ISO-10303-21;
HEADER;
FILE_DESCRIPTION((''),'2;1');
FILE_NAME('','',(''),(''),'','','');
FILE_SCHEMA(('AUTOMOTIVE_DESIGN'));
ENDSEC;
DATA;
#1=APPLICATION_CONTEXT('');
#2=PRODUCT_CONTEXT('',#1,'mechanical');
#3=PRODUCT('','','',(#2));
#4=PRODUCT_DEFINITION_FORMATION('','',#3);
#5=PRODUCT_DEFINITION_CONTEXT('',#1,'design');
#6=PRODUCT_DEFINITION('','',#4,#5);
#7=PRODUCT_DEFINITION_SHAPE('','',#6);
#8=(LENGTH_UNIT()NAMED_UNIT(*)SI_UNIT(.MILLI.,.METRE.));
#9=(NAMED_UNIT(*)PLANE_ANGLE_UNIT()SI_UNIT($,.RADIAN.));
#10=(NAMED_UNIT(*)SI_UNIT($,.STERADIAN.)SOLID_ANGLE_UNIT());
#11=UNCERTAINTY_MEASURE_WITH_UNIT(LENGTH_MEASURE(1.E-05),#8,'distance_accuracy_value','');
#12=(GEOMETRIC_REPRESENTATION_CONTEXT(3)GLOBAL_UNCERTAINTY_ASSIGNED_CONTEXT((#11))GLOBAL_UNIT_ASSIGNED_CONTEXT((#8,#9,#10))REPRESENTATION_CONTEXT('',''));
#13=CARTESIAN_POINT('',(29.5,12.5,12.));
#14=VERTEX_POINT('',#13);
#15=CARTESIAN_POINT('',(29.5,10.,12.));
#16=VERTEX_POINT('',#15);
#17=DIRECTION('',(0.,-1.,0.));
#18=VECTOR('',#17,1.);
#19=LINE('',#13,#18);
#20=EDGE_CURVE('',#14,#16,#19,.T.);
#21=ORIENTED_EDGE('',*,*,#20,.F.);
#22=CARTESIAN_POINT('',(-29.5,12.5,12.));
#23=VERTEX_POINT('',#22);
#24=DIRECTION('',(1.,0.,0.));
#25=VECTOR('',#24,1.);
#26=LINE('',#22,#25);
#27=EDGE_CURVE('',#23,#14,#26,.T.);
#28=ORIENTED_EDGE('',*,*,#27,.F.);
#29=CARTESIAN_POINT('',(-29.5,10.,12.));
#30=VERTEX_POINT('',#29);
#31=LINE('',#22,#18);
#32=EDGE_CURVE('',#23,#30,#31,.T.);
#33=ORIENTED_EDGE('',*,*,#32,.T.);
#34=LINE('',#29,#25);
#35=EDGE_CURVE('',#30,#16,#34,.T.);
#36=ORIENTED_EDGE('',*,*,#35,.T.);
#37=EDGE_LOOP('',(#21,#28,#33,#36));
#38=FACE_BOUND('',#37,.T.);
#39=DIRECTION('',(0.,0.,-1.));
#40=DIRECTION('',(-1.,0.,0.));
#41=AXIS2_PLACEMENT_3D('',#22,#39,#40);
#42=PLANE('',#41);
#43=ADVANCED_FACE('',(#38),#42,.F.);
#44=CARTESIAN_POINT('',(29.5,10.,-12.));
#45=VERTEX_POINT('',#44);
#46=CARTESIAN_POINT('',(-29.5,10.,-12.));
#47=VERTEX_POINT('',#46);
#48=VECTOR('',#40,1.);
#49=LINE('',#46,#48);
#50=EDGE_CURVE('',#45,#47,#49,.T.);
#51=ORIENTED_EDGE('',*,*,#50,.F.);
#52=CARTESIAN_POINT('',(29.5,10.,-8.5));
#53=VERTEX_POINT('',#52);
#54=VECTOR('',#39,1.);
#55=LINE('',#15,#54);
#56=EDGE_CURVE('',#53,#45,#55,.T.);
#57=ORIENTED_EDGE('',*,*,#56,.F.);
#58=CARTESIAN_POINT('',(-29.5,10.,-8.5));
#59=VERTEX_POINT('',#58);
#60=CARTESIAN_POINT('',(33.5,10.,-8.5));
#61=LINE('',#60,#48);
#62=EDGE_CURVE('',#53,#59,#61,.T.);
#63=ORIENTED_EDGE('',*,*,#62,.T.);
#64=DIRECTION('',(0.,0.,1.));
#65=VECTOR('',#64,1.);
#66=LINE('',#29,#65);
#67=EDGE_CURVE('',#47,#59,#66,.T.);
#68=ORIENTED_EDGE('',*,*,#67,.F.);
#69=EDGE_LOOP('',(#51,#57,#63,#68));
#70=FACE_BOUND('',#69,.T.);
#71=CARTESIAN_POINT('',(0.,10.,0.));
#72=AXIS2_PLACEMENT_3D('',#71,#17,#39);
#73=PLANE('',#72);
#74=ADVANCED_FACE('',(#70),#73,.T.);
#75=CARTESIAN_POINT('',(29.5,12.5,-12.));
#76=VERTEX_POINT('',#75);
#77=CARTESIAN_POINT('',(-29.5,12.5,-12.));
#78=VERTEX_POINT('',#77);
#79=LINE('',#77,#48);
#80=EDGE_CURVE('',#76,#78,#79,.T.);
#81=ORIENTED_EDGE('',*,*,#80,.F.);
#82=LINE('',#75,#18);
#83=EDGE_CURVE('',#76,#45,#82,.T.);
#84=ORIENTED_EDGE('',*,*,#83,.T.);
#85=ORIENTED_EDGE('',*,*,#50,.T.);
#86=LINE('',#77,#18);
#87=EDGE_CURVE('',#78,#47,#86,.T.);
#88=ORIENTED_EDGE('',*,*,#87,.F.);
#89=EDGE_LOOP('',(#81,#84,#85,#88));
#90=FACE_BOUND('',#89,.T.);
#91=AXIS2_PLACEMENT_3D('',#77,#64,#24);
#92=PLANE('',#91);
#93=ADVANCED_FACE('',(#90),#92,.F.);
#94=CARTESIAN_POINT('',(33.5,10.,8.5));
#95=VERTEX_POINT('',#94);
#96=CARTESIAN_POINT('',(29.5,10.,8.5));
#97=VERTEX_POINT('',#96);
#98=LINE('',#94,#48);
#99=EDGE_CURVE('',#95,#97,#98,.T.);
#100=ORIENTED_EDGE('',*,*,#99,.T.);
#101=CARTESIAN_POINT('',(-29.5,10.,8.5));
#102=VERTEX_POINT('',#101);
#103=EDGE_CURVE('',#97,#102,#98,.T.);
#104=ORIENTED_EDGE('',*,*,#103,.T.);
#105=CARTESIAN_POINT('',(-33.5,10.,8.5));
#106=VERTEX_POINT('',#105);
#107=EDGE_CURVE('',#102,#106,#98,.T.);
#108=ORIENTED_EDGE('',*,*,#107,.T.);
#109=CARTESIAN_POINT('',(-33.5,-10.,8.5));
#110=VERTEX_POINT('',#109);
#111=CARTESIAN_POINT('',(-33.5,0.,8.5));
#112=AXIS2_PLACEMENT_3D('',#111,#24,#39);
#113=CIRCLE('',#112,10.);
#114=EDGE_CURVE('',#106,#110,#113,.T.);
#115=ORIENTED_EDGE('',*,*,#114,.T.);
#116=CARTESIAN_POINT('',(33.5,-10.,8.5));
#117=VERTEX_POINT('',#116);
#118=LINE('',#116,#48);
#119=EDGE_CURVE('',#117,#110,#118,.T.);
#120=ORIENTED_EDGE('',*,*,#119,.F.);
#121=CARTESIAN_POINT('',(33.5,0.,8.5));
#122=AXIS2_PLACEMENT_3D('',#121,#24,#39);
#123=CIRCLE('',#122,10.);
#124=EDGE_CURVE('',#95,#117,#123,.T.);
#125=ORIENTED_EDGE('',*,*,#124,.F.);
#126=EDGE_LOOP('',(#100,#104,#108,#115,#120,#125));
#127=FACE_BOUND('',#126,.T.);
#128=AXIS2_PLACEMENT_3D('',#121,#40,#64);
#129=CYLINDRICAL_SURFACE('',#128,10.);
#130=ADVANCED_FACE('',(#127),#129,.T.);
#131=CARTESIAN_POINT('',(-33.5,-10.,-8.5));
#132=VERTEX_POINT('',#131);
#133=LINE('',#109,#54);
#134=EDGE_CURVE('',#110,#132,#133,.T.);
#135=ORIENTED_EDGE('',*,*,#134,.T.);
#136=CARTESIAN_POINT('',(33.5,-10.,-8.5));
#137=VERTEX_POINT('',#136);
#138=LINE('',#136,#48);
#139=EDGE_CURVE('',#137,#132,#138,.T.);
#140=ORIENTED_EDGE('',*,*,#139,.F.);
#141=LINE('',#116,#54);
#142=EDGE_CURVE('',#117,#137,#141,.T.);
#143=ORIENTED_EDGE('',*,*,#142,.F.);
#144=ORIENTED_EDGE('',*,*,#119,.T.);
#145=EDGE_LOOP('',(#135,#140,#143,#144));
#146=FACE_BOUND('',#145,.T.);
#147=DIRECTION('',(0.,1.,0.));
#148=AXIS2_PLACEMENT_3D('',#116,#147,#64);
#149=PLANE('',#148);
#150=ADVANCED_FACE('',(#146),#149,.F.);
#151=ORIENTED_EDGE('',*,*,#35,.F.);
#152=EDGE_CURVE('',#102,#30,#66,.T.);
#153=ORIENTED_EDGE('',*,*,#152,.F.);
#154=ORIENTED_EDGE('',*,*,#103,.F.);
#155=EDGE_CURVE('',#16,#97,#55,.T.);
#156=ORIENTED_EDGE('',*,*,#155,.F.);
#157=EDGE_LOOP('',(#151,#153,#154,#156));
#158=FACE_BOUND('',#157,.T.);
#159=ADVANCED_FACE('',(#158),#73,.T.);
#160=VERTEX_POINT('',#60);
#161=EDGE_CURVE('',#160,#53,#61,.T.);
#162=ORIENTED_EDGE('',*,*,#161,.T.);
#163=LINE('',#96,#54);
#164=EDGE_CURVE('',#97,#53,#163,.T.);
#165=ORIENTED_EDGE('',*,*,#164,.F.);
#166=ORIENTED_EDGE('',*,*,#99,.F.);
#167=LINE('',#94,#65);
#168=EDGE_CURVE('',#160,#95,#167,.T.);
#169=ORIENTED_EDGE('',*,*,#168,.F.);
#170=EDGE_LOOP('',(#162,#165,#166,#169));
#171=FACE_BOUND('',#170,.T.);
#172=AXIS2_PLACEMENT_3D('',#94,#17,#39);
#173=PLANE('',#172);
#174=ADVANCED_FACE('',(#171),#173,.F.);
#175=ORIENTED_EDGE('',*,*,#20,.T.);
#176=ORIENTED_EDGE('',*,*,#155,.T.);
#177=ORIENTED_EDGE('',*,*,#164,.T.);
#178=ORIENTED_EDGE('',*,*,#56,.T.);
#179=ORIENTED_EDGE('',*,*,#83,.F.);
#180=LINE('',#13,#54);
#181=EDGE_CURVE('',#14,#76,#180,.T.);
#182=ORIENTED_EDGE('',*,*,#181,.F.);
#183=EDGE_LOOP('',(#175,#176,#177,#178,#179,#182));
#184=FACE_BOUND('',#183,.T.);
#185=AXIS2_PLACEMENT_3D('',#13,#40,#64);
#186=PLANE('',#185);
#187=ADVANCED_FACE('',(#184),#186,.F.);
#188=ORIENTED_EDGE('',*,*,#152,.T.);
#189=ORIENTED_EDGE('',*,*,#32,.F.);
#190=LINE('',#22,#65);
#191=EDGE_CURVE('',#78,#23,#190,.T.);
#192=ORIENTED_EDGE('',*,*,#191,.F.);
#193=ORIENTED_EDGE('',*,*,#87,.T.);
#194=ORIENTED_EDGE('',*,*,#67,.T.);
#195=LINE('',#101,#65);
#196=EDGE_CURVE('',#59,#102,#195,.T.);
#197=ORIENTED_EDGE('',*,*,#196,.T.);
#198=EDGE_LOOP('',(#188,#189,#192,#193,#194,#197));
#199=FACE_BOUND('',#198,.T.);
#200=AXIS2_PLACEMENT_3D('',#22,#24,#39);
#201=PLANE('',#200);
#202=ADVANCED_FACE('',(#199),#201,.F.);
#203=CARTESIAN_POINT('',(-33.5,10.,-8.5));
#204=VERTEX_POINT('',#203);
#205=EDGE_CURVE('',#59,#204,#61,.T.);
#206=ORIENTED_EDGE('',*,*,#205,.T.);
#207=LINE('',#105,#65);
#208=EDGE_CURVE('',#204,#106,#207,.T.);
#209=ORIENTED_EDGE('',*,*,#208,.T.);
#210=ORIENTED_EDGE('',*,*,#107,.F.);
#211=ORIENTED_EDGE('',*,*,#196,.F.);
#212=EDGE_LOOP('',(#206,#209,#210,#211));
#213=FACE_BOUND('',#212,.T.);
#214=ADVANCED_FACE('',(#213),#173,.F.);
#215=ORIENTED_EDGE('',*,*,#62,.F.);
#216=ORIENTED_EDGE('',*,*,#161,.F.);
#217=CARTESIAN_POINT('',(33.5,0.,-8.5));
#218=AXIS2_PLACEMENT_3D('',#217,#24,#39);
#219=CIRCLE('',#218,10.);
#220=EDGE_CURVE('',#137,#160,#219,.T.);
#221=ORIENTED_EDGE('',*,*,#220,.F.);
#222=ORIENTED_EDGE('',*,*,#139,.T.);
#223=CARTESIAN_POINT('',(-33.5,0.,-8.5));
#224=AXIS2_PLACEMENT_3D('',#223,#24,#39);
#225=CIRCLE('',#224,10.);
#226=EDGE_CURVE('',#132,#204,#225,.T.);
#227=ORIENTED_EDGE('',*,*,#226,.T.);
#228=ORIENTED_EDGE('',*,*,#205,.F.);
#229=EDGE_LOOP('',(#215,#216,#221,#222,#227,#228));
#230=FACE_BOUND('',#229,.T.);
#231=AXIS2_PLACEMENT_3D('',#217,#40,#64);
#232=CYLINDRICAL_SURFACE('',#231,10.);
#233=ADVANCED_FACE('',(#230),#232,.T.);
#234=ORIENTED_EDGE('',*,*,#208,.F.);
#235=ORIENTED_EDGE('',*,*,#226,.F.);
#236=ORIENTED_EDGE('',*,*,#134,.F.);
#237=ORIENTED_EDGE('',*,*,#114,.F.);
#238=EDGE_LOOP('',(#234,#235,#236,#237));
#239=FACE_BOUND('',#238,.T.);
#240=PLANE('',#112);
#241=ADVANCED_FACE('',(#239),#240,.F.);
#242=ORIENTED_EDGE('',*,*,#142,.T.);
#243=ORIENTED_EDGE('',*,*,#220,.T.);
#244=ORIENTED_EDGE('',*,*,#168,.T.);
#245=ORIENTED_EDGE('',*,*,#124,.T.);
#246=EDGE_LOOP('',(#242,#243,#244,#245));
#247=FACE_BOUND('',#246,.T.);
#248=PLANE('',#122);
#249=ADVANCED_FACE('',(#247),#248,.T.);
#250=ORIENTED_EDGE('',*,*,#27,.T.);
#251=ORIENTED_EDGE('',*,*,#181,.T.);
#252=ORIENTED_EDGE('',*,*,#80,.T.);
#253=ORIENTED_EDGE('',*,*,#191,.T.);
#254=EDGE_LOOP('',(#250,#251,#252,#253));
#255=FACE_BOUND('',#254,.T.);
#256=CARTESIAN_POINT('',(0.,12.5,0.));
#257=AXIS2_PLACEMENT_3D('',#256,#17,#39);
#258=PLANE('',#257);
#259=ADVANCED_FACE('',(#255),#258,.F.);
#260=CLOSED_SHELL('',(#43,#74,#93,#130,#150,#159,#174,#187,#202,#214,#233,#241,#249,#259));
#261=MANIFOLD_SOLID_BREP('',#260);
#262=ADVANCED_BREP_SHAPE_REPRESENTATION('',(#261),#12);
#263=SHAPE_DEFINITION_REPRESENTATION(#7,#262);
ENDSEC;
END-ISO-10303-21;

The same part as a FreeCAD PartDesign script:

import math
import FreeCAD as App
import Part
import Sketcher
from FreeCAD import Vector
Q = App.Units.Quantity


def add_polygon(sketch, points):
    """Adds a closed chain of lines whose ends are joined by coincident constraints."""
    first, n = sketch.GeometryCount, len(points)
    for a, b in zip(points, points[1:] + points[:1]):
        sketch.addGeometry(Part.LineSegment(App.Vector(*a, 0), App.Vector(*b, 0)), False)
    for i in range(n):
        sketch.addConstraint(Sketcher.Constraint("Coincident", first + i, 2, first + (i + 1) % n, 1))

doc = App.newDocument("Part")
body = doc.addObject("PartDesign::Body", "Body")

sketch1 = body.newObject("Sketcher::SketchObject", "Sketch")
sketch1.AttachmentSupport = (doc.getObject("YZ_Plane"), [""])
sketch1.MapMode = "FlatFace"
sketch1.addGeometry([
    Part.LineSegment(Vector(10, -8.5, 0), Vector(10, 8.5, 0)),
    Part.ArcOfCircle(Part.Circle(Vector(0, 8.5, 0), Vector(0, 0, 1), 10), math.radians(0), math.radians(180)),
    Part.LineSegment(Vector(-10, 8.5, 0), Vector(-10, -8.5, 0)),
    Part.ArcOfCircle(Part.Circle(Vector(0, -8.5, 0), Vector(0, 0, 1), 10), math.radians(180), math.radians(360)),
], False)
sketch1.addConstraint([
    Sketcher.Constraint("Tangent", 0, 2, 1, 1),
    Sketcher.Constraint("Tangent", 1, 2, 2, 1),
    Sketcher.Constraint("Tangent", 2, 2, 3, 1),
    Sketcher.Constraint("Tangent", 3, 2, 0, 1),
    Sketcher.Constraint("Vertical", 0),
    Sketcher.Constraint("Vertical", 2),
    Sketcher.Constraint("Symmetric", 1, 3, 3, 3, -1, 1),
    Sketcher.Constraint("Radius", 1, Q("10 mm")),
    Sketcher.Constraint("DistanceY", 0, 1, 0, 2, Q("17 mm")),
])
pad1 = body.newObject("PartDesign::Pad", "Pad")
pad1.Profile = sketch1
pad1.Length = 67
pad1.Midplane = True

sketch2 = body.newObject("Sketcher::SketchObject", "Sketch001")
sketch2.AttachmentSupport = (doc.getObject("XZ_Plane"), [""])
sketch2.MapMode = "FlatFace"
sketch2.AttachmentOffset = App.Placement(Vector(0, 0, -10), App.Rotation())
add_polygon(sketch2, [(-29.5, -12), (-29.5, 12), (29.5, 12), (29.5, -12)])
sketch2.addConstraint([
    Sketcher.Constraint("Vertical", 0),
    Sketcher.Constraint("Horizontal", 1),
    Sketcher.Constraint("Vertical", 2),
    Sketcher.Constraint("Horizontal", 3),
    Sketcher.Constraint("Symmetric", 0, 2, 2, 2, -1, 1),
    Sketcher.Constraint("DistanceX", 1, 1, 1, 2, Q("59 mm")),
    Sketcher.Constraint("DistanceY", 0, 1, 0, 2, Q("24 mm")),
])
pad2 = body.newObject("PartDesign::Pad", "Pad001")
pad2.Profile = sketch2
pad2.Length = 2.5
pad2.Reversed = True

doc.recompute()
